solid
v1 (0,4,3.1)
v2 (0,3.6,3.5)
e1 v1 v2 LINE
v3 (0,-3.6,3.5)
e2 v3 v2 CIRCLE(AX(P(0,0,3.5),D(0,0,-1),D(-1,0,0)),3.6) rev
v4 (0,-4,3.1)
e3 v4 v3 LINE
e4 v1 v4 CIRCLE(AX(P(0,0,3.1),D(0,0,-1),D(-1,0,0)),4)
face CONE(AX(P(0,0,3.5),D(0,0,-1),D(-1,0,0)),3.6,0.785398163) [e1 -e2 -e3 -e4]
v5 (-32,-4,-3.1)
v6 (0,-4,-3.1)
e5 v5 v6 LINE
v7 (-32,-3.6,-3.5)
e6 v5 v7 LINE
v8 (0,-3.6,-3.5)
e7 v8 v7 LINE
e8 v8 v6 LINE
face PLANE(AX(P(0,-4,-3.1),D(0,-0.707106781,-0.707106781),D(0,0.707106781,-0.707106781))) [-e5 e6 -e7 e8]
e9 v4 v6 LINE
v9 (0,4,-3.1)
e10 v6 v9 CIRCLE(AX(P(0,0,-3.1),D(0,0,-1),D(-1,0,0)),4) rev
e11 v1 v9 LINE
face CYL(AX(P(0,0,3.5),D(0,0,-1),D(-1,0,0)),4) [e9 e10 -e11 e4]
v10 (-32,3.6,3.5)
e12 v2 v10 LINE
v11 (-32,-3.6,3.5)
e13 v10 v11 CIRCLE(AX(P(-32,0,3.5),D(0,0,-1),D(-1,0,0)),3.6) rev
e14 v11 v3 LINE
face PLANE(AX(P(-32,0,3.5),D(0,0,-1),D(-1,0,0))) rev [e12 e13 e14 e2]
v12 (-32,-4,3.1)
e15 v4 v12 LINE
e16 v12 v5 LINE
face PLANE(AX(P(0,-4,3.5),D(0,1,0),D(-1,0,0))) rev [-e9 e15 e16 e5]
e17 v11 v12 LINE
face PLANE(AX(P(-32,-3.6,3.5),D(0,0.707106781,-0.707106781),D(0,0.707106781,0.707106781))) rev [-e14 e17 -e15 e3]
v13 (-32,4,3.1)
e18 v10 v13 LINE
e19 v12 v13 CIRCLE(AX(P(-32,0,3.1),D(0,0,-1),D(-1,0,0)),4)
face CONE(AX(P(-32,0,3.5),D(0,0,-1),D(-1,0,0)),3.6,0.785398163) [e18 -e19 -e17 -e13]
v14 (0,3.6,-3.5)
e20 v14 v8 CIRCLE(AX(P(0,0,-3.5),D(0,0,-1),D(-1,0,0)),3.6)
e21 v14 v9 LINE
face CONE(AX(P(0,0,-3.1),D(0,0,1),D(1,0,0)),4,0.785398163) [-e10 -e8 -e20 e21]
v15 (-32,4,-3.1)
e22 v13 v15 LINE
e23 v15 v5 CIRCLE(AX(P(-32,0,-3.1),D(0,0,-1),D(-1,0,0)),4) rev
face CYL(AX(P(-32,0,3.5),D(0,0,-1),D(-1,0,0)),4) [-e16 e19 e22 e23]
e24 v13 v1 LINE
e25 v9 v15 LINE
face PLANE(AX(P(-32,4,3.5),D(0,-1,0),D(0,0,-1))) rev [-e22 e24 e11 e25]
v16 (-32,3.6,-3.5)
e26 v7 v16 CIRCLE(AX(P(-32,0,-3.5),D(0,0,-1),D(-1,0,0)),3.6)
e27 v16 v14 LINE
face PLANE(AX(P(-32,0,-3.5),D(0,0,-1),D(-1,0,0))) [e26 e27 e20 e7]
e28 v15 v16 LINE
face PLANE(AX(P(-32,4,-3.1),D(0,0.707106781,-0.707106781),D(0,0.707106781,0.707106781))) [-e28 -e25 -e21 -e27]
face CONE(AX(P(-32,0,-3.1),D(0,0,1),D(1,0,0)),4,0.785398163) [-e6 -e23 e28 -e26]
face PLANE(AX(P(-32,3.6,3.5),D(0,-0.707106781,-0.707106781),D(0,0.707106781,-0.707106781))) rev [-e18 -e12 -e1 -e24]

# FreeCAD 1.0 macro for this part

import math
import FreeCAD as App
import Part
import Sketcher

V = App.Vector
Q = App.Units.Quantity


def edges_at(feature, points):
    """Names of the edges that pass closest to the given points."""
    edges = feature.Shape.Edges
    near = lambda p: min(range(len(edges)), key=lambda i: edges[i].distToShape(Part.Vertex(*p))[0])
    return sorted({f"Edge{near(p) + 1}" for p in points})

doc = App.newDocument("Part")
body = doc.addObject("PartDesign::Body", "Body")

# Sketch on XY plane
sketch1 = body.newObject("Sketcher::SketchObject", "Sketch")
sketch1.AttachmentSupport = (doc.getObject("XY_Plane"), [""])
sketch1.MapMode = "FlatFace"
sketch1.addGeometry([
    Part.LineSegment(V(0, 4, 0), V(-32, 4, 0)),
    Part.ArcOfCircle(Part.Circle(V(-32, 0, 0), V(0, 0, 1), 4), math.radians(90), math.radians(270)),
    Part.LineSegment(V(-32, -4, 0), V(0, -4, 0)),
    Part.ArcOfCircle(Part.Circle(V(0, 0, 0), V(0, 0, 1), 4), math.radians(-90), math.radians(90)),
], False)
sketch1.addConstraint([
    Sketcher.Constraint("Tangent", 0, 2, 1, 1),
    Sketcher.Constraint("Tangent", 1, 2, 2, 1),
    Sketcher.Constraint("Tangent", 2, 2, 3, 1),
    Sketcher.Constraint("Tangent", 3, 2, 0, 1),
    Sketcher.Constraint("Horizontal", 0),
    Sketcher.Constraint("Horizontal", 2),
    Sketcher.Constraint("Coincident", 3, 3, -1, 1),
    Sketcher.Constraint("Radius", 1, Q("4 mm")),
    Sketcher.Constraint("DistanceX", 0, 2, 0, 1, Q("32 mm")),
])
pad1 = body.newObject("PartDesign::Pad", "Pad")
pad1.Profile = sketch1
pad1.Length = 7
pad1.Midplane = True
doc.recompute()

chamfer = body.newObject("PartDesign::Chamfer", "Chamfer")
chamfer.Base = (pad1, edges_at(pad1, [
    (4, 0, 3.5),
    (-16, 4, 3.5),
    (-36, 0, 3.5),
    (-16, 4, -3.5),
    (4, 0, -3.5),
    (-16, -4, -3.5),
    (-36, 0, -3.5),
    (-16, -4, 3.5),
]))
chamfer.Size = 0.4

doc.recompute()
